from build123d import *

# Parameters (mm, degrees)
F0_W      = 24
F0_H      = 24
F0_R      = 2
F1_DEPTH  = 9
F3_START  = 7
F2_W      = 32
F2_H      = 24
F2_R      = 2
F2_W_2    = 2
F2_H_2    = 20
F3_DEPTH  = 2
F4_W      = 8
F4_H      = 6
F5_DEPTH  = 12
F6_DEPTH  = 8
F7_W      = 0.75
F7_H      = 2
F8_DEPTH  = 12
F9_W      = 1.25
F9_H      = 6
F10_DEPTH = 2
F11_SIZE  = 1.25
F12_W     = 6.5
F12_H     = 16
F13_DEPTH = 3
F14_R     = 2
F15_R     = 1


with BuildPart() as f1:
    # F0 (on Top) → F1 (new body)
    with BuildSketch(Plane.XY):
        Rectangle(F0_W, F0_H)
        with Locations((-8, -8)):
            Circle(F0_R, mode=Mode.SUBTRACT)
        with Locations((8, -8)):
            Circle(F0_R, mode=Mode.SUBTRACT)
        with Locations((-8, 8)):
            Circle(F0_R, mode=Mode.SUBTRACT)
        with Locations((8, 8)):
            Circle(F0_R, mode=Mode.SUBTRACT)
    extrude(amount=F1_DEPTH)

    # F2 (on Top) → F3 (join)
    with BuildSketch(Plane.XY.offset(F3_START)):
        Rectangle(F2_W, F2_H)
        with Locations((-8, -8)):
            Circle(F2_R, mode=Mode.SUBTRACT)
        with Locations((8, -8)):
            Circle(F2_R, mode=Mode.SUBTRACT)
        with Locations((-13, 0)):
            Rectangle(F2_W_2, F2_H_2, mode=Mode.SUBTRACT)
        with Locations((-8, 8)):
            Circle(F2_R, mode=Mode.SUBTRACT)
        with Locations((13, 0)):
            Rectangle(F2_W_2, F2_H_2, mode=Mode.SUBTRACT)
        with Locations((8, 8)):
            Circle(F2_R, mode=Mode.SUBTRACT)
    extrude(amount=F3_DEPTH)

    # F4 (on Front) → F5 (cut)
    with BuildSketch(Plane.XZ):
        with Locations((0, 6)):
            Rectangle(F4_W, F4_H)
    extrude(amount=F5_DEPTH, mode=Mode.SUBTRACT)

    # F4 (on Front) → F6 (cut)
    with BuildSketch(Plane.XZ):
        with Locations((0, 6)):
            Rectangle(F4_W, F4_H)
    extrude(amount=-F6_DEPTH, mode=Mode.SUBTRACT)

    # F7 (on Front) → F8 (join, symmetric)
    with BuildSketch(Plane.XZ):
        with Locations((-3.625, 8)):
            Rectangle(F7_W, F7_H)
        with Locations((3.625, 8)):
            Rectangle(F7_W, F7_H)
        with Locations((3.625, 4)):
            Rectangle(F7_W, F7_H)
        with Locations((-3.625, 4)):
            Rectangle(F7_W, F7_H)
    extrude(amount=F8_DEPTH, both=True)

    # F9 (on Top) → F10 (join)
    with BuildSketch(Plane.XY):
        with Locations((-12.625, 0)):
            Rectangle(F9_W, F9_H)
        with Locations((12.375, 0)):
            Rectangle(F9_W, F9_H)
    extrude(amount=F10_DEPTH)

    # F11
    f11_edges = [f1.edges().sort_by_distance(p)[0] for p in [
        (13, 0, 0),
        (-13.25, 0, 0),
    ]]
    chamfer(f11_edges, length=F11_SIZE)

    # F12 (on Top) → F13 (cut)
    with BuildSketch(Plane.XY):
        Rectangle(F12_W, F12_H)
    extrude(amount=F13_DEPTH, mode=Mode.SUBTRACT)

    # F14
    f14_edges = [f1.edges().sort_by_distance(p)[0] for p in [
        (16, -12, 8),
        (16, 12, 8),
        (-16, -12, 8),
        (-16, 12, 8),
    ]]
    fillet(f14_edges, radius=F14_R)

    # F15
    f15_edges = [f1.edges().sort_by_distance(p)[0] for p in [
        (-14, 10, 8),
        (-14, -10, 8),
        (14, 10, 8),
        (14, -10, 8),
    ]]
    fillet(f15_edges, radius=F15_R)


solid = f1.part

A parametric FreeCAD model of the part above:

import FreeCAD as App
import Part
import Sketcher

V = App.Vector
Q = App.Units.Quantity


def edges_at(feature, points):
    """Names of the edges that pass closest to the given points."""
    edges = feature.Shape.Edges
    near = lambda p: min(range(len(edges)), key=lambda i: edges[i].distToShape(Part.Vertex(*p))[0])
    return sorted({f"Edge{near(p) + 1}" for p in points})

doc = App.newDocument("Part")
params = doc.addObject("Spreadsheet::Sheet", "Params")
for row, (alias, value) in enumerate([
    ("sketch1_diameter", "4 mm"),
    ("sketch1_width", "24 mm"),
    ("pad1_length", "9 mm"),
    ("sketch2_diameter", "4 mm"),
    ("sketch2_width", "32 mm"),
    ("sketch2_width2", "2 mm"),
    ("sketch2_height", "24 mm"),
    ("sketch2_height2", "20 mm"),
    ("pad2_length", "2 mm"),
    ("sketch3_width", "8 mm"),
    ("sketch3_height", "6 mm"),
    ("pocket1_length", "12 mm"),
    ("sketch4_width", "8 mm"),
    ("sketch4_height", "6 mm"),
    ("pocket2_length", "8 mm"),
    ("sketch5_height", "2 mm"),
    ("sketch5_width", "0.75 mm"),
    ("pad3_length", "24 mm"),
    ("sketch6_height", "6 mm"),
    ("sketch6_width", "1.25 mm"),
    ("pad4_length", "2 mm"),
    ("chamfer_size", "1.25 mm"),
    ("sketch7_height", "16 mm"),
    ("sketch7_width", "6.5 mm"),
    ("pocket3_length", "3 mm"),
    ("fillet_radius", "2 mm"),
    ("fillet2_radius", "1 mm"),
], start=1):
    params.set(f"A{row}", alias)
    params.set(f"B{row}", "=" + value)
    params.setAlias(f"B{row}", alias)

body = doc.addObject("PartDesign::Body", "Body")

# Sketch on XY plane
sketch1 = body.newObject("Sketcher::SketchObject", "Sketch")
sketch1.AttachmentSupport = (doc.getObject("XY_Plane"), [""])
sketch1.MapMode = "FlatFace"
sketch1.addGeometry([
    Part.LineSegment(V(-12, 12, 0), V(-12, -12, 0)),  # 0
    Part.LineSegment(V(-12, -12, 0), V(12, -12, 0)),  # 1
    Part.LineSegment(V(12, -12, 0), V(12, 12, 0)),  # 2
    Part.LineSegment(V(12, 12, 0), V(-12, 12, 0)),  # 3
    Part.Circle(V(-8, -8, 0), V(0, 0, 1), 2),  # 4
    Part.Circle(V(8, -8, 0), V(0, 0, 1), 2),  # 5
    Part.Circle(V(-8, 8, 0), V(0, 0, 1), 2),  # 6
    Part.Circle(V(8, 8, 0), V(0, 0, 1), 2),  # 7
], False)
sketch1.addConstraint([
    Sketcher.Constraint("Coincident", 0, 2, 1, 1),
    Sketcher.Constraint("Coincident", 1, 2, 2, 1),
    Sketcher.Constraint("Coincident", 2, 2, 3, 1),
    Sketcher.Constraint("Coincident", 3, 2, 0, 1),
    Sketcher.Constraint("Vertical", 0),
    Sketcher.Constraint("Horizontal", 1),
    Sketcher.Constraint("Vertical", 2),
    Sketcher.Constraint("Horizontal", 3),
    Sketcher.Constraint("Equal", 4, 5),
    Sketcher.Constraint("Equal", 5, 6),
    Sketcher.Constraint("Equal", 6, 7),
    Sketcher.Constraint("Symmetric", 5, 3, 6, 3, -1, 1),
    Sketcher.Constraint("Symmetric", 4, 3, 7, 3, -1, 1),
    Sketcher.Constraint("Symmetric", 0, 2, 2, 2, -1, 1),
    Sketcher.Constraint("Symmetric", 4, 3, 5, 3, -2),
    Sketcher.Constraint("Equal", 3, 0),
    Sketcher.Constraint("Diameter", 4, Q("4 mm")),
    Sketcher.Constraint("DistanceX", 1, 1, 1, 2, Q("24 mm")),
    Sketcher.Constraint("DistanceX", 4, 3, -1, 1, Q("8 mm")),
    Sketcher.Constraint("DistanceY", 4, 3, -1, 1, Q("8 mm")),
])
sketch1.setExpression("Constraints[16]", "Params.sketch1_diameter")
sketch1.setExpression("Constraints[17]", "Params.sketch1_width")
pad1 = body.newObject("PartDesign::Pad", "Pad")
pad1.Profile = sketch1
pad1.setExpression("Length", "Params.pad1_length")

# Sketch on XY plane
sketch2 = body.newObject("Sketcher::SketchObject", "Sketch001")
sketch2.AttachmentSupport = (doc.getObject("XY_Plane"), [""])
sketch2.MapMode = "FlatFace"
sketch2.AttachmentOffset = App.Placement(V(0, 0, 7), App.Rotation())
sketch2.addGeometry([
    Part.LineSegment(V(-16, 12, 0), V(-16, -12, 0)),  # 0
    Part.LineSegment(V(-16, -12, 0), V(16, -12, 0)),  # 1
    Part.LineSegment(V(16, -12, 0), V(16, 12, 0)),  # 2
    Part.LineSegment(V(16, 12, 0), V(-16, 12, 0)),  # 3
    Part.Circle(V(-8, -8, 0), V(0, 0, 1), 2),  # 4
    Part.Circle(V(8, -8, 0), V(0, 0, 1), 2),  # 5
    Part.LineSegment(V(-12, -10, 0), V(-14, -10, 0)),  # 6
    Part.LineSegment(V(-14, -10, 0), V(-14, 10, 0)),  # 7
    Part.LineSegment(V(-14, 10, 0), V(-12, 10, 0)),  # 8
    Part.LineSegment(V(-12, 10, 0), V(-12, -10, 0)),  # 9
    Part.Circle(V(-8, 8, 0), V(0, 0, 1), 2),  # 10
    Part.LineSegment(V(14, -10, 0), V(12, -10, 0)),  # 11
    Part.LineSegment(V(12, -10, 0), V(12, 10, 0)),  # 12
    Part.LineSegment(V(12, 10, 0), V(14, 10, 0)),  # 13
    Part.LineSegment(V(14, 10, 0), V(14, -10, 0)),  # 14
    Part.Circle(V(8, 8, 0), V(0, 0, 1), 2),  # 15
], False)
sketch2.addConstraint([
    Sketcher.Constraint("Coincident", 0, 2, 1, 1),
    Sketcher.Constraint("Coincident", 1, 2, 2, 1),
    Sketcher.Constraint("Coincident", 2, 2, 3, 1),
    Sketcher.Constraint("Coincident", 3, 2, 0, 1),
    Sketcher.Constraint("Coincident", 6, 2, 7, 1),
    Sketcher.Constraint("Coincident", 7, 2, 8, 1),
    Sketcher.Constraint("Coincident", 8, 2, 9, 1),
    Sketcher.Constraint("Coincident", 9, 2, 6, 1),
    Sketcher.Constraint("Coincident", 11, 2, 12, 1),
    Sketcher.Constraint("Coincident", 12, 2, 13, 1),
    Sketcher.Constraint("Coincident", 13, 2, 14, 1),
    Sketcher.Constraint("Coincident", 14, 2, 11, 1),
    Sketcher.Constraint("Vertical", 0),
    Sketcher.Constraint("Horizontal", 1),
    Sketcher.Constraint("Vertical", 2),
    Sketcher.Constraint("Horizontal", 3),
    Sketcher.Constraint("Horizontal", 6),
    Sketcher.Constraint("Vertical", 7),
    Sketcher.Constraint("Horizontal", 8),
    Sketcher.Constraint("Vertical", 9),
    Sketcher.Constraint("Horizontal", 11),
    Sketcher.Constraint("Vertical", 12),
    Sketcher.Constraint("Horizontal", 13),
    Sketcher.Constraint("Vertical", 14),
    Sketcher.Constraint("Equal", 4, 5),
    Sketcher.Constraint("Equal", 5, 10),
    Sketcher.Constraint("Equal", 10, 15),
    Sketcher.Constraint("Symmetric", 5, 3, 10, 3, -1, 1),
    Sketcher.Constraint("Symmetric", 4, 3, 15, 3, -1, 1),
    Sketcher.Constraint("Symmetric", 0, 2, 2, 2, -1, 1),
    Sketcher.Constraint("Symmetric", 8, 2, 11, 2, -1, 1),
    Sketcher.Constraint("Symmetric", 6, 2, 13, 2, -1, 1),
    Sketcher.Constraint("Symmetric", 4, 3, 5, 3, -2),
    Sketcher.Constraint("Horizontal", 9, 2, 11, 2),
    Sketcher.Constraint("Diameter", 4, Q("4 mm")),
    Sketcher.Constraint("DistanceX", 1, 1, 1, 2, Q("32 mm")),
    Sketcher.Constraint("DistanceX", 6, 2, 6, 1, Q("2 mm")),
    Sketcher.Constraint("DistanceY", 0, 2, 0, 1, Q("24 mm")),
    Sketcher.Constraint("DistanceY", 7, 1, 7, 2, Q("20 mm")),
    Sketcher.Constraint("DistanceX", 4, 3, -1, 1, Q("8 mm")),
    Sketcher.Constraint("DistanceY", 4, 3, -1, 1, Q("8 mm")),
    Sketcher.Constraint("DistanceX", 6, 2, -1, 1, Q("14 mm")),
])
sketch2.setExpression("Constraints[34]", "Params.sketch2_diameter")
sketch2.setExpression("Constraints[35]", "Params.sketch2_width")
sketch2.setExpression("Constraints[36]", "Params.sketch2_width2")
sketch2.setExpression("Constraints[37]", "Params.sketch2_height")
sketch2.setExpression("Constraints[38]", "Params.sketch2_height2")
pad2 = body.newObject("PartDesign::Pad", "Pad001")
pad2.Profile = sketch2
pad2.setExpression("Length", "Params.pad2_length")

# Sketch on XZ plane
sketch3 = body.newObject("Sketcher::SketchObject", "Sketch002")
sketch3.AttachmentSupport = (doc.getObject("XZ_Plane"), [""])
sketch3.MapMode = "FlatFace"
sketch3.addGeometry([
    Part.LineSegment(V(-4, 9, 0), V(-4, 3, 0)),
    Part.LineSegment(V(-4, 3, 0), V(4, 3, 0)),
    Part.LineSegment(V(4, 3, 0), V(4, 9, 0)),
    Part.LineSegment(V(4, 9, 0), V(-4, 9, 0)),
], False)
sketch3.addConstraint([
    Sketcher.Constraint("Coincident", 0, 2, 1, 1),
    Sketcher.Constraint("Coincident", 1, 2, 2, 1),
    Sketcher.Constraint("Coincident", 2, 2, 3, 1),
    Sketcher.Constraint("Coincident", 3, 2, 0, 1),
    Sketcher.Constraint("Vertical", 0),
    Sketcher.Constraint("Horizontal", 1),
    Sketcher.Constraint("Vertical", 2),
    Sketcher.Constraint("Horizontal", 3),
    Sketcher.Constraint("DistanceX", 1, 1, 1, 2, Q("8 mm")),
    Sketcher.Constraint("DistanceY", 0, 2, 0, 1, Q("6 mm")),
    Sketcher.Constraint("DistanceX", 0, 2, -1, 1, Q("4 mm")),
    Sketcher.Constraint("DistanceY", -1, 1, 0, 2, Q("3 mm")),
])
sketch3.setExpression("Constraints[8]", "Params.sketch3_width")
sketch3.setExpression("Constraints[9]", "Params.sketch3_height")
pocket1 = body.newObject("PartDesign::Pocket", "Pocket")
pocket1.Profile = sketch3
pocket1.setExpression("Length", "Params.pocket1_length")
pocket1.Reversed = True

# Sketch on XZ plane
sketch4 = body.newObject("Sketcher::SketchObject", "Sketch003")
sketch4.AttachmentSupport = (doc.getObject("XZ_Plane"), [""])
sketch4.MapMode = "FlatFace"
sketch4.addGeometry([
    Part.LineSegment(V(-4, 9, 0), V(-4, 3, 0)),
    Part.LineSegment(V(-4, 3, 0), V(4, 3, 0)),
    Part.LineSegment(V(4, 3, 0), V(4, 9, 0)),
    Part.LineSegment(V(4, 9, 0), V(-4, 9, 0)),
], False)
sketch4.addConstraint([
    Sketcher.Constraint("Coincident", 0, 2, 1, 1),
    Sketcher.Constraint("Coincident", 1, 2, 2, 1),
    Sketcher.Constraint("Coincident", 2, 2, 3, 1),
    Sketcher.Constraint("Coincident", 3, 2, 0, 1),
    Sketcher.Constraint("Vertical", 0),
    Sketcher.Constraint("Horizontal", 1),
    Sketcher.Constraint("Vertical", 2),
    Sketcher.Constraint("Horizontal", 3),
    Sketcher.Constraint("DistanceX", 1, 1, 1, 2, Q("8 mm")),
    Sketcher.Constraint("DistanceY", 0, 2, 0, 1, Q("6 mm")),
    Sketcher.Constraint("DistanceX", 0, 2, -1, 1, Q("4 mm")),
    Sketcher.Constraint("DistanceY", -1, 1, 0, 2, Q("3 mm")),
])
sketch4.setExpression("Constraints[8]", "Params.sketch4_width")
sketch4.setExpression("Constraints[9]", "Params.sketch4_height")
pocket2 = body.newObject("PartDesign::Pocket", "Pocket001")
pocket2.Profile = sketch4
pocket2.setExpression("Length", "Params.pocket2_length")

# Sketch on XZ plane
sketch5 = body.newObject("Sketcher::SketchObject", "Sketch004")
sketch5.AttachmentSupport = (doc.getObject("XZ_Plane"), [""])
sketch5.MapMode = "FlatFace"
sketch5.addGeometry([
    Part.LineSegment(V(-4, 9, 0), V(-4, 7, 0)),  # 0
    Part.LineSegment(V(-4, 7, 0), V(-3.2, 7, 0)),  # 1
    Part.LineSegment(V(-3.2, 7, 0), V(-3.2, 9, 0)),  # 2
    Part.LineSegment(V(-3.2, 9, 0), V(-4, 9, 0)),  # 3
    Part.LineSegment(V(3.2, 9, 0), V(3.2, 7, 0)),  # 4
    Part.LineSegment(V(3.2, 7, 0), V(4, 7, 0)),  # 5
    Part.LineSegment(V(4, 7, 0), V(4, 9, 0)),  # 6
    Part.LineSegment(V(4, 9, 0), V(3.2, 9, 0)),  # 7
    Part.LineSegment(V(3.2, 5, 0), V(3.2, 3, 0)),  # 8
    Part.LineSegment(V(3.2, 3, 0), V(4, 3, 0)),  # 9
    Part.LineSegment(V(4, 3, 0), V(4, 5, 0)),  # 10
    Part.LineSegment(V(4, 5, 0), V(3.2, 5, 0)),  # 11
    Part.LineSegment(V(-4, 5, 0), V(-4, 3, 0)),  # 12
    Part.LineSegment(V(-4, 3, 0), V(-3.2, 3, 0)),  # 13
    Part.LineSegment(V(-3.2, 3, 0), V(-3.2, 5, 0)),  # 14
    Part.LineSegment(V(-3.2, 5, 0), V(-4, 5, 0)),  # 15
], False)
sketch5.addConstraint([
    Sketcher.Constraint("Coincident", 0, 2, 1, 1),
    Sketcher.Constraint("Coincident", 1, 2, 2, 1),
    Sketcher.Constraint("Coincident", 2, 2, 3, 1),
    Sketcher.Constraint("Coincident", 3, 2, 0, 1),
    Sketcher.Constraint("Coincident", 4, 2, 5, 1),
    Sketcher.Constraint("Coincident", 5, 2, 6, 1),
    Sketcher.Constraint("Coincident", 6, 2, 7, 1),
    Sketcher.Constraint("Coincident", 7, 2, 4, 1),
    Sketcher.Constraint("Coincident", 8, 2, 9, 1),
    Sketcher.Constraint("Coincident", 9, 2, 10, 1),
    Sketcher.Constraint("Coincident", 10, 2, 11, 1),
    Sketcher.Constraint("Coincident", 11, 2, 8, 1),
    Sketcher.Constraint("Coincident", 12, 2, 13, 1),
    Sketcher.Constraint("Coincident", 13, 2, 14, 1),
    Sketcher.Constraint("Coincident", 14, 2, 15, 1),
    Sketcher.Constraint("Coincident", 15, 2, 12, 1),
    Sketcher.Constraint("Vertical", 0),
    Sketcher.Constraint("Horizontal", 1),
    Sketcher.Constraint("Vertical", 2),
    Sketcher.Constraint("Horizontal", 3),
    Sketcher.Constraint("Vertical", 4),
    Sketcher.Constraint("Horizontal", 5),
    Sketcher.Constraint("Vertical", 6),
    Sketcher.Constraint("Horizontal", 7),
    Sketcher.Constraint("Vertical", 8),
    Sketcher.Constraint("Horizontal", 9),
    Sketcher.Constraint("Vertical", 10),
    Sketcher.Constraint("Horizontal", 11),
    Sketcher.Constraint("Vertical", 12),
    Sketcher.Constraint("Horizontal", 13),
    Sketcher.Constraint("Vertical", 14),
    Sketcher.Constraint("Horizontal", 15),
    Sketcher.Constraint("Symmetric", 1, 2, 4, 2, -2),
    Sketcher.Constraint("Symmetric", 3, 2, 6, 2, -2),
    Sketcher.Constraint("Symmetric", 9, 2, 12, 2, -2),
    Sketcher.Constraint("Symmetric", 11, 2, 14, 2, -2),
    Sketcher.Constraint("Vertical", 7, 2, 8, 2),
    Sketcher.Constraint("Vertical", 6, 2, 9, 2),
    Sketcher.Constraint("Equal", 6, 8),
    Sketcher.Constraint("DistanceY", 0, 2, 0, 1, Q("2 mm")),
    Sketcher.Constraint("DistanceX", 0, 2, -1, 1, Q("4 mm")),
    Sketcher.Constraint("DistanceY", -1, 1, 0, 2, Q("7 mm")),
    Sketcher.Constraint("DistanceY", -1, 1, 8, 2, Q("3 mm")),
    Sketcher.Constraint("DistanceX", 1, 1, 1, 2, Q("0.75 mm")),
])
sketch5.setExpression("Constraints[39]", "Params.sketch5_height")
sketch5.setExpression("Constraints[43]", "Params.sketch5_width")
pad3 = body.newObject("PartDesign::Pad", "Pad002")
pad3.Profile = sketch5
pad3.setExpression("Length", "Params.pad3_length")
pad3.Midplane = True

# Sketch on XY plane
sketch6 = body.newObject("Sketcher::SketchObject", "Sketch005")
sketch6.AttachmentSupport = (doc.getObject("XY_Plane"), [""])
sketch6.MapMode = "FlatFace"
sketch6.addGeometry([
    Part.LineSegment(V(-13.2, 3, 0), V(-13.2, -3, 0)),  # 0
    Part.LineSegment(V(-13.2, -3, 0), V(-12, -3, 0)),  # 1
    Part.LineSegment(V(-12, -3, 0), V(-12, 3, 0)),  # 2
    Part.LineSegment(V(-12, 3, 0), V(-13.2, 3, 0)),  # 3
    Part.LineSegment(V(11.8, 3, 0), V(11.8, -3, 0)),  # 4
    Part.LineSegment(V(11.8, -3, 0), V(13, -3, 0)),  # 5
    Part.LineSegment(V(13, -3, 0), V(13, 3, 0)),  # 6
    Part.LineSegment(V(13, 3, 0), V(11.8, 3, 0)),  # 7
], False)
sketch6.addConstraint([
    Sketcher.Constraint("Coincident", 0, 2, 1, 1),
    Sketcher.Constraint("Coincident", 1, 2, 2, 1),
    Sketcher.Constraint("Coincident", 2, 2, 3, 1),
    Sketcher.Constraint("Coincident", 3, 2, 0, 1),
    Sketcher.Constraint("Coincident", 4, 2, 5, 1),
    Sketcher.Constraint("Coincident", 5, 2, 6, 1),
    Sketcher.Constraint("Coincident", 6, 2, 7, 1),
    Sketcher.Constraint("Coincident", 7, 2, 4, 1),
    Sketcher.Constraint("Vertical", 0),
    Sketcher.Constraint("Horizontal", 1),
    Sketcher.Constraint("Vertical", 2),
    Sketcher.Constraint("Horizontal", 3),
    Sketcher.Constraint("Vertical", 4),
    Sketcher.Constraint("Horizontal", 5),
    Sketcher.Constraint("Vertical", 6),
    Sketcher.Constraint("Horizontal", 7),
    Sketcher.Constraint("Horizontal", 1, 2, 4, 2),
    Sketcher.Constraint("Horizontal", 3, 2, 6, 2),
    Sketcher.Constraint("Equal", 3, 5),
    Sketcher.Constraint("DistanceY", 0, 2, 0, 1, Q("6 mm")),
    Sketcher.Constraint("DistanceY", 0, 2, -1, 1, Q("3 mm")),
    Sketcher.Constraint("DistanceX", 1, 2, -1, 1, Q("12 mm")),
    Sketcher.Constraint("DistanceX", -1, 1, 5, 2, Q("13 mm")),
    Sketcher.Constraint("DistanceX", 1, 1, 1, 2, Q("1.25 mm")),
])
sketch6.setExpression("Constraints[19]", "Params.sketch6_height")
sketch6.setExpression("Constraints[23]", "Params.sketch6_width")
pad4 = body.newObject("PartDesign::Pad", "Pad003")
pad4.Profile = sketch6
pad4.setExpression("Length", "Params.pad4_length")
doc.recompute()

chamfer = body.newObject("PartDesign::Chamfer", "Chamfer")
chamfer.Base = (pad4, edges_at(pad4, [(13, 0, 0), (-13.25, 0, 0)]))
chamfer.setExpression("Size", "Params.chamfer_size")

# Sketch on XY plane
sketch7 = body.newObject("Sketcher::SketchObject", "Sketch006")
sketch7.AttachmentSupport = (doc.getObject("XY_Plane"), [""])
sketch7.MapMode = "FlatFace"
sketch7.addGeometry([
    Part.LineSegment(V(-3, 8, 0), V(-3, -8, 0)),
    Part.LineSegment(V(-3, -8, 0), V(3, -8, 0)),
    Part.LineSegment(V(3, -8, 0), V(3, 8, 0)),
    Part.LineSegment(V(3, 8, 0), V(-3, 8, 0)),
], False)
sketch7.addConstraint([
    Sketcher.Constraint("Coincident", 0, 2, 1, 1),
    Sketcher.Constraint("Coincident", 1, 2, 2, 1),
    Sketcher.Constraint("Coincident", 2, 2, 3, 1),
    Sketcher.Constraint("Coincident", 3, 2, 0, 1),
    Sketcher.Constraint("Vertical", 0),
    Sketcher.Constraint("Horizontal", 1),
    Sketcher.Constraint("Vertical", 2),
    Sketcher.Constraint("Horizontal", 3),
    Sketcher.Constraint("Symmetric", 0, 2, 2, 2, -1, 1),
    Sketcher.Constraint("DistanceY", 0, 2, 0, 1, Q("16 mm")),
    Sketcher.Constraint("DistanceX", 1, 1, 1, 2, Q("6.5 mm")),
])
sketch7.setExpression("Constraints[9]", "Params.sketch7_height")
sketch7.setExpression("Constraints[10]", "Params.sketch7_width")
pocket3 = body.newObject("PartDesign::Pocket", "Pocket002")
pocket3.Profile = sketch7
pocket3.setExpression("Length", "Params.pocket3_length")
pocket3.Reversed = True
doc.recompute()

fillet = body.newObject("PartDesign::Fillet", "Fillet")
fillet.Base = (pocket3, edges_at(pocket3, [
    (16, -12, 8),
    (16, 12, 8),
    (-16, -12, 8),
    (-16, 12, 8),
]))
fillet.setExpression("Radius", "Params.fillet_radius")
doc.recompute()

fillet2 = body.newObject("PartDesign::Fillet", "Fillet001")
fillet2.Base = (fillet, edges_at(fillet, [
    (-14, 10, 8),
    (-14, -10, 8),
    (14, 10, 8),
    (14, -10, 8),
]))
fillet2.setExpression("Radius", "Params.fillet2_radius")

doc.recompute()
